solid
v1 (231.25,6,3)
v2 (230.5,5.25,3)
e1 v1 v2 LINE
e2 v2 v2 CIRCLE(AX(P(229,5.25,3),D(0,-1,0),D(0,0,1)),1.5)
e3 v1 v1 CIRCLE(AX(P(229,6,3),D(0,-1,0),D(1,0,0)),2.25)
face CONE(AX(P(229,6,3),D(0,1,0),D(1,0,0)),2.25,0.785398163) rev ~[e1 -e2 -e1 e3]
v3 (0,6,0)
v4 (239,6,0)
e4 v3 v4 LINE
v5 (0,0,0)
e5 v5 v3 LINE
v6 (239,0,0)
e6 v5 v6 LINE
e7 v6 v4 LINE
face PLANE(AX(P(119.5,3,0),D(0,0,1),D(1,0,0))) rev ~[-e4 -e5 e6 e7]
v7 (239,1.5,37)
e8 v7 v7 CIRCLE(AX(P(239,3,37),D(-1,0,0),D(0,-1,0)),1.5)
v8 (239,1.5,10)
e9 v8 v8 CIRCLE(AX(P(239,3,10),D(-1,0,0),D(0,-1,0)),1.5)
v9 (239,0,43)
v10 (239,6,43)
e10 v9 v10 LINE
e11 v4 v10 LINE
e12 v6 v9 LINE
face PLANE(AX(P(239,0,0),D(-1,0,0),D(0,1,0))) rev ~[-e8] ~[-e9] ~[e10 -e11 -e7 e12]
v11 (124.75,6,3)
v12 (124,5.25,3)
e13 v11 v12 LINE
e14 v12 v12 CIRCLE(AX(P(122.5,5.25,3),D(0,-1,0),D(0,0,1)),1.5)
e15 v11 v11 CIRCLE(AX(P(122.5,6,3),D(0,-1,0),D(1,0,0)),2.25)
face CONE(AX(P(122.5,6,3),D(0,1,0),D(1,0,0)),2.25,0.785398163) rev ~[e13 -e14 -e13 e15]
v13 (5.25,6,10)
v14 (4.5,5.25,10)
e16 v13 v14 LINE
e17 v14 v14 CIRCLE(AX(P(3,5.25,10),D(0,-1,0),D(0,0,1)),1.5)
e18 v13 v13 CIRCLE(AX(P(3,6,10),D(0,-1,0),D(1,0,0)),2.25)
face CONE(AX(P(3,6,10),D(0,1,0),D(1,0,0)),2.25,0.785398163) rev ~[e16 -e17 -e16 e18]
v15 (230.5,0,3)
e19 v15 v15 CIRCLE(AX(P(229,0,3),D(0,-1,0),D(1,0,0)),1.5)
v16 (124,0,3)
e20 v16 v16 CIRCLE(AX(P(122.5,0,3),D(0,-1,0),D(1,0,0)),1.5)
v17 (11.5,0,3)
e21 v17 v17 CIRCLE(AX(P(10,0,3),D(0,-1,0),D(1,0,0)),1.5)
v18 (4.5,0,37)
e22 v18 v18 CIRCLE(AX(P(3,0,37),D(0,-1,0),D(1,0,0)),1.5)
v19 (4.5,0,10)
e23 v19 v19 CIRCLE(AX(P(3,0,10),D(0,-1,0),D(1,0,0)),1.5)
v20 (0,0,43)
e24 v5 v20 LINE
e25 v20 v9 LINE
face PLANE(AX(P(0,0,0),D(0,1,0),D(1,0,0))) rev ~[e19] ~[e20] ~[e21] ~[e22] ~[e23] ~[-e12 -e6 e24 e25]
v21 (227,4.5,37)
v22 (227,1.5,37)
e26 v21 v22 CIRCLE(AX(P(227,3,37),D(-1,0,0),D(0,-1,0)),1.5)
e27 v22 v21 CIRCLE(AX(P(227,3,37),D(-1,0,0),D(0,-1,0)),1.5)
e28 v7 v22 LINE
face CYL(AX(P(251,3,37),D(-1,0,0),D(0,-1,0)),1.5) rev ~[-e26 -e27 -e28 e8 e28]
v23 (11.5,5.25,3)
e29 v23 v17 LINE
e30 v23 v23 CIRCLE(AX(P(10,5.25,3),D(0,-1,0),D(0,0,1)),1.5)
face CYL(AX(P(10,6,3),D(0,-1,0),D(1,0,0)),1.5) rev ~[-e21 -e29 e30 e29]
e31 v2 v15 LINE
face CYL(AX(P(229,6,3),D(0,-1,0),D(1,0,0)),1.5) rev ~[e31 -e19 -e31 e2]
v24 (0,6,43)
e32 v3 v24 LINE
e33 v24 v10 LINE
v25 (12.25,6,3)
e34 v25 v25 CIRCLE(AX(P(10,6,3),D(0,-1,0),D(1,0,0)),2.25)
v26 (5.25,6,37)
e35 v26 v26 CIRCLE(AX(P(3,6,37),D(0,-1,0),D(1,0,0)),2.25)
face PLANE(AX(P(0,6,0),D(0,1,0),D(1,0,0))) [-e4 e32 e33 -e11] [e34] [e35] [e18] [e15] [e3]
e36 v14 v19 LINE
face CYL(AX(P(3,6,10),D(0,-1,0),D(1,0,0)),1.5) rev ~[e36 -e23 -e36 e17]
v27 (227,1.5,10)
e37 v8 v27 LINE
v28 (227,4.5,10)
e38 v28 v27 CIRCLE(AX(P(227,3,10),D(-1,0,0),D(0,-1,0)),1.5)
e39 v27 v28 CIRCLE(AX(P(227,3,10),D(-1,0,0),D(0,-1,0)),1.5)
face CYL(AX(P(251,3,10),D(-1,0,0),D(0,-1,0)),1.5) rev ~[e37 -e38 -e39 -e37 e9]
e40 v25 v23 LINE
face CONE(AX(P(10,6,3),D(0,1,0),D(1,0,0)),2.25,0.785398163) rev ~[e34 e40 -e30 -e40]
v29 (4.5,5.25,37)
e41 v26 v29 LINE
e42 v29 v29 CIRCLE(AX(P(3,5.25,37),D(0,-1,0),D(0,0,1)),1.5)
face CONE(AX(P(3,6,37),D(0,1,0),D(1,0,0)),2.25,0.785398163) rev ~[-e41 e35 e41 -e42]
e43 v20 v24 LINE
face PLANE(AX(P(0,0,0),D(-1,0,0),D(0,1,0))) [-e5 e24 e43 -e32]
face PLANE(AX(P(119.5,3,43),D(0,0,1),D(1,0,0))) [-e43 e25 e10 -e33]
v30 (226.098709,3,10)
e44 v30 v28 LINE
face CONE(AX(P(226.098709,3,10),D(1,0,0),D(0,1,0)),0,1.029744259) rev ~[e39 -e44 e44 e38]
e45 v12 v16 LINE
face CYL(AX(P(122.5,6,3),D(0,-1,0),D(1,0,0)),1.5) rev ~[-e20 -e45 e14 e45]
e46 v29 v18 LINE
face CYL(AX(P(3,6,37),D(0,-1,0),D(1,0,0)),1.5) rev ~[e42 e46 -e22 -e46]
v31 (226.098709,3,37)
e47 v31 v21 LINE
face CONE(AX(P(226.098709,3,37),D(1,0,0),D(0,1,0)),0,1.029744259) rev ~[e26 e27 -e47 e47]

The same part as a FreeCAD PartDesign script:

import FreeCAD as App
import Part
import Sketcher


def add_polygon(sketch, points):
    """Adds a closed chain of lines whose ends are joined by coincident constraints."""
    first, n = sketch.GeometryCount, len(points)
    for a, b in zip(points, points[1:] + points[:1]):
        sketch.addGeometry(Part.LineSegment(App.Vector(*a, 0), App.Vector(*b, 0)), False)
    for i in range(n):
        sketch.addConstraint(Sketcher.Constraint("Coincident", first + i, 2, first + (i + 1) % n, 1))

doc = App.newDocument("Part")
params = doc.addObject("Spreadsheet::Sheet", "Params")
for row, (alias, value) in enumerate([
    ("sketch1_width", "239 mm"),
    ("sketch1_height", "6 mm"),
    ("pad1_length", "43 mm"),
    ("sketch2_diameter", "3 mm"),
    ("hole_diameter", "3 mm"),
    ("hole_csink_diameter", "4.5 mm"),
    ("sketch3_diameter", "3 mm"),
    ("hole2_diameter", "3 mm"),
    ("hole2_depth", "12 mm"),
    ("sketch4_diameter", "3 mm"),
    ("hole3_diameter", "3 mm"),
    ("hole3_csink_diameter", "4.5 mm"),
], start=1):
    params.set(f"A{row}", alias)
    params.set(f"B{row}", "=" + value)
    params.setAlias(f"B{row}", alias)

body = doc.addObject("PartDesign::Body", "Body")

sketch1 = body.newObject("Sketcher::SketchObject", "Sketch")
sketch1.AttachmentSupport = (doc.getObject("XY_Plane"), [""])
sketch1.MapMode = "FlatFace"
add_polygon(sketch1, [(0, 6), (0, 0), (239, 0), (239, 6)])
sketch1.addConstraint(Sketcher.Constraint("Vertical", 0))
sketch1.addConstraint(Sketcher.Constraint("Horizontal", 1))
sketch1.addConstraint(Sketcher.Constraint("Vertical", 2))
sketch1.addConstraint(Sketcher.Constraint("Horizontal", 3))
sketch1.addConstraint(Sketcher.Constraint("Coincident", 0, 2, -1, 1))
sketch1.addConstraint(Sketcher.Constraint("DistanceX", 1, 1, 1, 2, 239.0))
sketch1.addConstraint(Sketcher.Constraint("DistanceY", 0, 2, 0, 1, 6.0))
sketch1.setExpression("Constraints[9]", "Params.sketch1_width")
sketch1.setExpression("Constraints[10]", "Params.sketch1_height")
pad1 = body.newObject("PartDesign::Pad", "Pad")
pad1.Profile = sketch1
pad1.setExpression("Length", "Params.pad1_length")

sketch2 = body.newObject("Sketcher::SketchObject", "Sketch001")
sketch2.AttachmentSupport = (doc.getObject("XZ_Plane"), [""])
sketch2.MapMode = "FlatFace"
sketch2.AttachmentOffset = App.Placement(App.Vector(0, 0, -6), App.Rotation())
sketch2.addGeometry(Part.Circle(App.Vector(229, 3, 0), App.Vector(0, 0, 1), 1.5), False)
sketch2.addGeometry(Part.Circle(App.Vector(122.5, 3, 0), App.Vector(0, 0, 1), 1.5), False)
sketch2.addGeometry(Part.Circle(App.Vector(10, 3, 0), App.Vector(0, 0, 1), 1.5), False)
sketch2.addConstraint(Sketcher.Constraint("Equal", 0, 1))
sketch2.addConstraint(Sketcher.Constraint("Equal", 1, 2))
sketch2.addConstraint(Sketcher.Constraint("Horizontal", 0, 3, 1, 3))
sketch2.addConstraint(Sketcher.Constraint("Horizontal", 1, 3, 2, 3))
sketch2.addConstraint(Sketcher.Constraint("Diameter", 0, 3.0))
sketch2.addConstraint(Sketcher.Constraint("DistanceX", -1, 1, 0, 3, 229.0))
sketch2.addConstraint(Sketcher.Constraint("DistanceY", -1, 1, 0, 3, 3.0))
sketch2.addConstraint(Sketcher.Constraint("DistanceX", -1, 1, 2, 3, 10.0))
sketch2.addConstraint(Sketcher.Constraint("DistanceX", -1, 1, 1, 3, 122.5))
sketch2.setExpression("Constraints[4]", "Params.sketch2_diameter")
doc.recompute()
hole = body.newObject("PartDesign::Hole", "Hole")
hole.Profile = sketch2
hole.ThreadType = "None"
hole.setExpression("Diameter", "Params.hole_diameter")
hole.DepthType = "ThroughAll"
hole.HoleCutType = "Countersink"
hole.setExpression("HoleCutDiameter", "Params.hole_csink_diameter")
hole.HoleCutCountersinkAngle = 90
hole.Reversed = True

sketch3 = body.newObject("Sketcher::SketchObject", "Sketch002")
sketch3.AttachmentSupport = (doc.getObject("YZ_Plane"), [""])
sketch3.MapMode = "FlatFace"
sketch3.AttachmentOffset = App.Placement(App.Vector(0, 0, 239), App.Rotation())
sketch3.addGeometry(Part.Circle(App.Vector(3, 37, 0), App.Vector(0, 0, 1), 1.5), False)
sketch3.addGeometry(Part.Circle(App.Vector(3, 10, 0), App.Vector(0, 0, 1), 1.5), False)
sketch3.addConstraint(Sketcher.Constraint("Equal", 0, 1))
sketch3.addConstraint(Sketcher.Constraint("Vertical", 0, 3, 1, 3))
sketch3.addConstraint(Sketcher.Constraint("Diameter", 0, 3.0))
sketch3.addConstraint(Sketcher.Constraint("DistanceX", -1, 1, 0, 3, 3.0))
sketch3.addConstraint(Sketcher.Constraint("DistanceY", -1, 1, 0, 3, 37.0))
sketch3.addConstraint(Sketcher.Constraint("DistanceY", -1, 1, 1, 3, 10.0))
sketch3.setExpression("Constraints[2]", "Params.sketch3_diameter")
doc.recompute()
hole2 = body.newObject("PartDesign::Hole", "Hole001")
hole2.Profile = sketch3
hole2.ThreadType = "None"
hole2.setExpression("Diameter", "Params.hole2_diameter")
hole2.DepthType = "Dimension"
hole2.setExpression("Depth", "Params.hole2_depth")
hole2.DrillPoint = "Angled"
hole2.DrillPointAngle = 118

sketch4 = body.newObject("Sketcher::SketchObject", "Sketch003")
sketch4.AttachmentSupport = (doc.getObject("XZ_Plane"), [""])
sketch4.MapMode = "FlatFace"
sketch4.AttachmentOffset = App.Placement(App.Vector(0, 0, -6), App.Rotation())
sketch4.addGeometry(Part.Circle(App.Vector(3, 37, 0), App.Vector(0, 0, 1), 1.5), False)
sketch4.addGeometry(Part.Circle(App.Vector(3, 10, 0), App.Vector(0, 0, 1), 1.5), False)
sketch4.addConstraint(Sketcher.Constraint("Equal", 0, 1))
sketch4.addConstraint(Sketcher.Constraint("Vertical", 0, 3, 1, 3))
sketch4.addConstraint(Sketcher.Constraint("Diameter", 0, 3.0))
sketch4.addConstraint(Sketcher.Constraint("DistanceX", -1, 1, 0, 3, 3.0))
sketch4.addConstraint(Sketcher.Constraint("DistanceY", -1, 1, 0, 3, 37.0))
sketch4.addConstraint(Sketcher.Constraint("DistanceY", -1, 1, 1, 3, 10.0))
sketch4.setExpression("Constraints[2]", "Params.sketch4_diameter")
doc.recompute()
hole3 = body.newObject("PartDesign::Hole", "Hole002")
hole3.Profile = sketch4
hole3.ThreadType = "None"
hole3.setExpression("Diameter", "Params.hole3_diameter")
hole3.DepthType = "ThroughAll"
hole3.HoleCutType = "Countersink"
hole3.setExpression("HoleCutDiameter", "Params.hole3_csink_diameter")
hole3.HoleCutCountersinkAngle = 90
hole3.Reversed = True

doc.recompute()
